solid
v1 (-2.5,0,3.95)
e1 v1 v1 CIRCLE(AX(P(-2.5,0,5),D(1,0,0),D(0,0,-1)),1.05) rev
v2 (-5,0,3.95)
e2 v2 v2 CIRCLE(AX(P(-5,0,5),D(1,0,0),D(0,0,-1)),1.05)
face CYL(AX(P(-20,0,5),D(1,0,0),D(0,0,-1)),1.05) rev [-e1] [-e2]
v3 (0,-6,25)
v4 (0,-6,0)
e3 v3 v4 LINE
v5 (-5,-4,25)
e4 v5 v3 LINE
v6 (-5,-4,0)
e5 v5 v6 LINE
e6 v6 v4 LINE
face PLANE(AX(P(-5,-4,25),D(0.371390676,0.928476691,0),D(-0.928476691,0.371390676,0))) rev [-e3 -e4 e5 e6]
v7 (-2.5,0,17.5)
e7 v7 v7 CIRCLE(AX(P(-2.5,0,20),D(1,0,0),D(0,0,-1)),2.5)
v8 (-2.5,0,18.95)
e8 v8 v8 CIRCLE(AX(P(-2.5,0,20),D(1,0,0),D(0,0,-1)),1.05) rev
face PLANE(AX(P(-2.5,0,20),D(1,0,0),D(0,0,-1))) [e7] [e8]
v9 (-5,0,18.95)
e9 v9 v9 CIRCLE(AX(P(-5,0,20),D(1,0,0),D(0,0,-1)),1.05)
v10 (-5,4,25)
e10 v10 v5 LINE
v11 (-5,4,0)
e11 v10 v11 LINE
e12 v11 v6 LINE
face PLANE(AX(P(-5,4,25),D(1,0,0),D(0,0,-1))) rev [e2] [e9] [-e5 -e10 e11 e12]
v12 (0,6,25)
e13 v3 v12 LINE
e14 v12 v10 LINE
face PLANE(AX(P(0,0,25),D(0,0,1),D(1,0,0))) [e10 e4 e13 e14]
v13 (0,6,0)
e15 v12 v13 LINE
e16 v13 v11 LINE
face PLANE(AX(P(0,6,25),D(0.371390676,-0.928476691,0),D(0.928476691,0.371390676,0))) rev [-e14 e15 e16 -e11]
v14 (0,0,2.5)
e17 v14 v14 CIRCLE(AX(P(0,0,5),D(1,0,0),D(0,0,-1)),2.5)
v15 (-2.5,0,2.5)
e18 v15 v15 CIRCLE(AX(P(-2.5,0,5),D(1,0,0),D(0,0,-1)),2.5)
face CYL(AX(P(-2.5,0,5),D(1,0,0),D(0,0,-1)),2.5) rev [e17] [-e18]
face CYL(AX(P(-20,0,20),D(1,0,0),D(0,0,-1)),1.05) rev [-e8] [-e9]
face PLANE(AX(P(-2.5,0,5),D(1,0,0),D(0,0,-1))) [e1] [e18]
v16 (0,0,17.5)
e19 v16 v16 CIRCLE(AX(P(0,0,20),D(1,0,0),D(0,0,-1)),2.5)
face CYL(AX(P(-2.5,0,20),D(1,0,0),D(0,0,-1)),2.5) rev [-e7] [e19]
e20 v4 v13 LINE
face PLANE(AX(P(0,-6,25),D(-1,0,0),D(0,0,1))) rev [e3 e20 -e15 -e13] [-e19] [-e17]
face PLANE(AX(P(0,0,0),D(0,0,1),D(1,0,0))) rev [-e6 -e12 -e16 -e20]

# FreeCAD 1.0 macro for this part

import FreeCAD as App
import Part
import Sketcher
from FreeCAD import Vector

doc = App.newDocument("Part")
body = doc.addObject("PartDesign::Body", "Body")

sketch1 = body.newObject("Sketcher::SketchObject", "Sketch")
sketch1.AttachmentSupport = (doc.getObject("XY_Plane"), [""])
sketch1.MapMode = "FlatFace"
sketch1.addGeometry([
    Part.LineSegment(Vector(0, -6, 0), Vector(0, 6, 0)),
    Part.LineSegment(Vector(0, 6, 0), Vector(-5, 4, 0)),
    Part.LineSegment(Vector(-5, 4, 0), Vector(-5, -4, 0)),
    Part.LineSegment(Vector(-5, -4, 0), Vector(0, -6, 0)),
], False)
sketch1.addConstraint([
    Sketcher.Constraint("Coincident", 0, 2, 1, 1),
    Sketcher.Constraint("Coincident", 1, 2, 2, 1),
    Sketcher.Constraint("Coincident", 2, 2, 3, 1),
    Sketcher.Constraint("Coincident", 3, 2, 0, 1),
    Sketcher.Constraint("Vertical", 0),
    Sketcher.Constraint("Vertical", 2),
    Sketcher.Constraint("Symmetric", 0, 2, 3, 2, -1, 1),
    Sketcher.Constraint("Equal", 1, 3),
    Sketcher.Constraint("DistanceY", 0, 1, 0, 2, 12.0),
    Sketcher.Constraint("DistanceY", 2, 2, 2, 1, 8.0),
    Sketcher.Constraint("DistanceX", 1, 2, -1, 1, 5.0),
])
pad1 = body.newObject("PartDesign::Pad", "Pad")
pad1.Profile = sketch1
pad1.Length = 25

sketch2 = body.newObject("Sketcher::SketchObject", "Sketch001")
sketch2.AttachmentSupport = (doc.getObject("YZ_Plane"), [""])
sketch2.MapMode = "FlatFace"
sketch2.addGeometry([
    Part.Circle(Vector(0, 20, 0), Vector(0, 0, 1), 1.1),
    Part.Circle(Vector(0, 5, 0), Vector(0, 0, 1), 1.1),
], False)
sketch2.addConstraint([
    Sketcher.Constraint("Equal", 0, 1),
    Sketcher.Constraint("PointOnObject", 0, 3, -2),
    Sketcher.Constraint("PointOnObject", 1, 3, -2),
    Sketcher.Constraint("Diameter", 0, 2.1),
    Sketcher.Constraint("DistanceY", -1, 1, 0, 3, 20.0),
    Sketcher.Constraint("DistanceY", -1, 1, 1, 3, 5.0),
])
pocket1 = body.newObject("PartDesign::Pocket", "Pocket")
pocket1.Profile = sketch2
pocket1.Length = 20

sketch3 = body.newObject("Sketcher::SketchObject", "Sketch002")
sketch3.AttachmentSupport = (doc.getObject("YZ_Plane"), [""])
sketch3.MapMode = "FlatFace"
sketch3.addGeometry([
    Part.Circle(Vector(0, 20, 0), Vector(0, 0, 1), 2.5),
    Part.Circle(Vector(0, 5, 0), Vector(0, 0, 1), 2.5),
], False)
sketch3.addConstraint([
    Sketcher.Constraint("Equal", 0, 1),
    Sketcher.Constraint("PointOnObject", 0, 3, -2),
    Sketcher.Constraint("PointOnObject", 1, 3, -2),
    Sketcher.Constraint("Diameter", 0, 5.0),
    Sketcher.Constraint("DistanceY", -1, 1, 0, 3, 20.0),
    Sketcher.Constraint("DistanceY", -1, 1, 1, 3, 5.0),
])
pocket2 = body.newObject("PartDesign::Pocket", "Pocket001")
pocket2.Profile = sketch3
pocket2.Length = 2.5

doc.recompute()
